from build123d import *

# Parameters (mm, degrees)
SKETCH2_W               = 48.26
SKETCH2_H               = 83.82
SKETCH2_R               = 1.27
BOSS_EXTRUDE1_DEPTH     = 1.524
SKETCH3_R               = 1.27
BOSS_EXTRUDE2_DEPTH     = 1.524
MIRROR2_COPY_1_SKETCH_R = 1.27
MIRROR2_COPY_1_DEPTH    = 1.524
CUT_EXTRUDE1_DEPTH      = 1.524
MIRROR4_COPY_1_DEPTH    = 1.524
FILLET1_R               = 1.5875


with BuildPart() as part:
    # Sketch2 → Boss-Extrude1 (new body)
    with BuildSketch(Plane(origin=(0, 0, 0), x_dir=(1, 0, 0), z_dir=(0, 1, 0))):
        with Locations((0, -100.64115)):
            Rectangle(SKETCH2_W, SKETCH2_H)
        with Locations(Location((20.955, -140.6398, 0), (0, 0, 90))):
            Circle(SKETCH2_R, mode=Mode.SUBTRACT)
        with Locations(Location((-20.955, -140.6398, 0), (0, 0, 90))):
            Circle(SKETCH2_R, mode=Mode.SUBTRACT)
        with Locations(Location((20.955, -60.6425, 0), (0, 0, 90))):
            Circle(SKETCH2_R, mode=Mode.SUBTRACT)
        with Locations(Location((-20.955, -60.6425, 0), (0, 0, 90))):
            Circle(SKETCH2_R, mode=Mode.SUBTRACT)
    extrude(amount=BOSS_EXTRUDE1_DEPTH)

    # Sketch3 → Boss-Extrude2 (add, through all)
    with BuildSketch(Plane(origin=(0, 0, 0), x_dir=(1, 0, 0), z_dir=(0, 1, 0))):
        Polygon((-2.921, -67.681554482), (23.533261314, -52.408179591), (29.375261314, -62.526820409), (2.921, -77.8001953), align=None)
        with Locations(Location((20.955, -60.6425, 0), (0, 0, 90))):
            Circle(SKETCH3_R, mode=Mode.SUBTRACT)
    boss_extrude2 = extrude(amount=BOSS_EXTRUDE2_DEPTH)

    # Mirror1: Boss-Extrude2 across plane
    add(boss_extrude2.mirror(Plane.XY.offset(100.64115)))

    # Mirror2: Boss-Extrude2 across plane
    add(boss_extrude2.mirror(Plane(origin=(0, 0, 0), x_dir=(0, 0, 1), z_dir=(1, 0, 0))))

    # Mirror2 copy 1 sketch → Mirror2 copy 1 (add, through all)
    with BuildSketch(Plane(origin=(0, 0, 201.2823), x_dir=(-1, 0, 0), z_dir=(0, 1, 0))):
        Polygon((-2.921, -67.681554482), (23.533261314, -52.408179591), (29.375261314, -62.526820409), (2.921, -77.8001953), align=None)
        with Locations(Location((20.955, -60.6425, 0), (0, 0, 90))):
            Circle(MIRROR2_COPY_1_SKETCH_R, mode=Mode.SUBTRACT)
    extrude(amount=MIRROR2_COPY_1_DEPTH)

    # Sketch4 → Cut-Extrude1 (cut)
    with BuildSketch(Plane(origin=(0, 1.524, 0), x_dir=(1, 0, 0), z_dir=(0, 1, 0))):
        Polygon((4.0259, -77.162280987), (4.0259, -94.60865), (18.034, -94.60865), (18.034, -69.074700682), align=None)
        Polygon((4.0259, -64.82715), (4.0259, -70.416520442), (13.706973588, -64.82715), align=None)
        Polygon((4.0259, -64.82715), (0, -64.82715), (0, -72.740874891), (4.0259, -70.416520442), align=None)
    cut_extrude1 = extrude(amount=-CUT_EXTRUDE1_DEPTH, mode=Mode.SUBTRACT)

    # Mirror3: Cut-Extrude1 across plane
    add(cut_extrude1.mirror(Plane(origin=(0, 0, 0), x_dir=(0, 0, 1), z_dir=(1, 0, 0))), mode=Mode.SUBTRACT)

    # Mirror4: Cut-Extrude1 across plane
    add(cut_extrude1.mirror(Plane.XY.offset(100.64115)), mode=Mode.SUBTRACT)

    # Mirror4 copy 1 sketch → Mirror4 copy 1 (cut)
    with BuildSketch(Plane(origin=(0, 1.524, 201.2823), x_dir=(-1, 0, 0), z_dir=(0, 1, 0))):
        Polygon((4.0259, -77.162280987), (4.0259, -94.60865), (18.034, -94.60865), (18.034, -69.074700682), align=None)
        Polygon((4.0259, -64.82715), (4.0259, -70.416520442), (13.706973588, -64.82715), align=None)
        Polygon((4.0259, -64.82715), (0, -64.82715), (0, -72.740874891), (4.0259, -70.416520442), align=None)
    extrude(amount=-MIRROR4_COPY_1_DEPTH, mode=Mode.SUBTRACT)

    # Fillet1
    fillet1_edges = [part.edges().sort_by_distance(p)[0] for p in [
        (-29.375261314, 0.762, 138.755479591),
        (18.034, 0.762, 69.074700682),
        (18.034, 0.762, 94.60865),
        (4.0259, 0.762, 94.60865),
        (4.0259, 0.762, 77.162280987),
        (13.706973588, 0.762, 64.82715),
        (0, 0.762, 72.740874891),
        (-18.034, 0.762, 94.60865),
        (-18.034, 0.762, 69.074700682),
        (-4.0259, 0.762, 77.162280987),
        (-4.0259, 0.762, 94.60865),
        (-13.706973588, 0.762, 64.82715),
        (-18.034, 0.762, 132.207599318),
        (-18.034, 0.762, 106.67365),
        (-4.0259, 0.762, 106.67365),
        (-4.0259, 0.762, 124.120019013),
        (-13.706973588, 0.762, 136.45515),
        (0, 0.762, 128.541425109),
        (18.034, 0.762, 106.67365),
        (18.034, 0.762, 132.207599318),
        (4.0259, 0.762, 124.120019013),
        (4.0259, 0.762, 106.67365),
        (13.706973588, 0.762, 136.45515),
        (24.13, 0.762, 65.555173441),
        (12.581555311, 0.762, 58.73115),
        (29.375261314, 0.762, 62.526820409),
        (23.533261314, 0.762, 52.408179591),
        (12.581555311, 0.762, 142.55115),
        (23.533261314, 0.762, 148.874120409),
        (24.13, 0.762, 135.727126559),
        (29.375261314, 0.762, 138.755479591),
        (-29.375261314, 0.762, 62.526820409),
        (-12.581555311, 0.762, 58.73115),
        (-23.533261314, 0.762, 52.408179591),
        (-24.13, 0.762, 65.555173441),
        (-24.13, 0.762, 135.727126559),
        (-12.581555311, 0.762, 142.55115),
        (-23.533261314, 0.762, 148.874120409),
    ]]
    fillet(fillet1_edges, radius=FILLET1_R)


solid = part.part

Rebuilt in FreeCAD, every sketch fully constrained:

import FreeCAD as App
import Part
import Sketcher
Q = App.Units.Quantity


def edges_at(feature, points):
    """Names of the edges that pass closest to the given points."""
    edges = feature.Shape.Edges
    near = lambda p: min(range(len(edges)), key=lambda i: edges[i].distToShape(Part.Vertex(*p))[0])
    return sorted({f"Edge{near(p) + 1}" for p in points})


def add_polygon(sketch, points):
    """Adds a closed chain of lines whose ends are joined by coincident constraints."""
    first, n = sketch.GeometryCount, len(points)
    for a, b in zip(points, points[1:] + points[:1]):
        sketch.addGeometry(Part.LineSegment(App.Vector(*a, 0), App.Vector(*b, 0)), False)
    for i in range(n):
        sketch.addConstraint(Sketcher.Constraint("Coincident", first + i, 2, first + (i + 1) % n, 1))

doc = App.newDocument("Part")
body = doc.addObject("PartDesign::Body", "Body")

sketch1 = body.newObject("Sketcher::SketchObject", "Sketch")
sketch1.AttachmentSupport = (doc.getObject("XZ_Plane"), [""])
sketch1.MapMode = "FlatFace"
add_polygon(sketch1, [(-24.1, 58.7), (-24.1, 142.6), (24.1, 142.6), (24.1, 58.7)])
sketch1.addGeometry(Part.Circle(App.Vector(-21, 140.6, 0), App.Vector(0, 0, 1), 1.3), False)
sketch1.addGeometry(Part.Circle(App.Vector(21, 140.6, 0), App.Vector(0, 0, 1), 1.3), False)
sketch1.addGeometry(Part.Circle(App.Vector(-21, 60.6, 0), App.Vector(0, 0, 1), 1.3), False)
sketch1.addGeometry(Part.Circle(App.Vector(21, 60.6, 0), App.Vector(0, 0, 1), 1.3), False)
sketch1.addConstraint([
    Sketcher.Constraint("Vertical", 0),
    Sketcher.Constraint("Horizontal", 1),
    Sketcher.Constraint("Vertical", 2),
    Sketcher.Constraint("Horizontal", 3),
    Sketcher.Constraint("Equal", 4, 5),
    Sketcher.Constraint("Equal", 5, 6),
    Sketcher.Constraint("Equal", 6, 7),
    Sketcher.Constraint("Symmetric", 4, 3, 5, 3, -2),
    Sketcher.Constraint("Symmetric", 6, 3, 7, 3, -2),
    Sketcher.Constraint("Vertical", 4, 3, 6, 3),
    Sketcher.Constraint("Diameter", 4, Q("0.1 in")),
    Sketcher.Constraint("DistanceX", 1, 1, 1, 2, Q("1.9 in")),
    Sketcher.Constraint("DistanceY", 0, 1, 0, 2, Q("3.3 in")),
    Sketcher.Constraint("DistanceX", 0, 2, -1, 1, Q("0.95 in")),
    Sketcher.Constraint("DistanceX", 4, 3, 5, 3, Q("1.65 in")),
    Sketcher.Constraint("DistanceY", -1, 1, 4, 3, Q("5.537 in")),
    Sketcher.Constraint("DistanceY", -1, 1, 6, 3, Q("2.3875 in")),
    Sketcher.Constraint("DistanceY", -1, 1, 0, 2, Q("142.55115 mm")),
])
pad1 = body.newObject("PartDesign::Pad", "Pad")
pad1.Profile = sketch1
pad1.Length = Q("0.06 in")
pad1.Reversed = True

sketch2 = body.newObject("Sketcher::SketchObject", "Sketch001")
sketch2.AttachmentSupport = (doc.getObject("XZ_Plane"), [""])
sketch2.MapMode = "FlatFace"
add_polygon(sketch2, [(23.5, 52.4), (-2.9, 67.7), (2.9, 77.8), (29.4, 62.5)])
sketch2.addGeometry(Part.Circle(App.Vector(21, 60.6, 0), App.Vector(0, 0, 1), 1.3), False)
sketch2.addConstraint([
    Sketcher.Constraint("Perpendicular", 0, 1),
    Sketcher.Constraint("Perpendicular", 1, 2),
    Sketcher.Constraint("Perpendicular", 2, 3),
    Sketcher.Constraint("Diameter", 4, Q("0.1 in")),
    Sketcher.Constraint("Angle", 0, Q("150 deg")),
    Sketcher.Constraint("Distance", 1, Q("0.46 in")),
    Sketcher.Constraint("DistanceX", 0, 2, 4, 3, Q("0.94 in")),
    Sketcher.Constraint("DistanceX", -1, 1, 4, 3, Q("0.825 in")),
    Sketcher.Constraint("DistanceY", -1, 1, 1, 2, Q("3.0629998 in")),
    Sketcher.Constraint("DistanceY", -1, 1, 4, 3, Q("2.3875 in")),
    Sketcher.Constraint("Distance", 0, Q("30.54675 mm")),
])
pad2 = body.newObject("PartDesign::Pad", "Pad001")
pad2.Profile = sketch2
pad2.Type = "UpToLast"
pad2.Reversed = True
doc.recompute()

datumplane = body.newObject("PartDesign::Plane", "DatumPlane")
datumplane.AttachmentSupport = (doc.getObject("XY_Plane"), [""])
datumplane.MapMode = "FlatFace"
datumplane.AttachmentOffset = App.Placement(App.Vector(0, 0, 100.64115), App.Rotation())
mirrored = body.newObject("PartDesign::Mirrored", "Mirrored")
mirrored.Originals = [pad2]
mirrored.MirrorPlane = (datumplane, [""])
body.Tip = mirrored
doc.recompute()

mirrored2 = body.newObject("PartDesign::Mirrored", "Mirrored001")
mirrored2.Originals = [pad2]
mirrored2.MirrorPlane = (doc.getObject("YZ_Plane"), [""])
body.Tip = mirrored2

sketch3 = body.newObject("Sketcher::SketchObject", "Sketch002")
sketch3.AttachmentSupport = (doc.getObject("XZ_Plane"), [""])
sketch3.MapMode = "FlatFace"
add_polygon(sketch3, [(-23.5, 148.9), (2.9, 133.6), (-2.9, 123.5), (-29.4, 138.8)])
sketch3.addGeometry(Part.Circle(App.Vector(-21, 140.6, 0), App.Vector(0, 0, 1), 1.3), False)
sketch3.addConstraint([
    Sketcher.Constraint("Perpendicular", 0, 1),
    Sketcher.Constraint("Perpendicular", 1, 2),
    Sketcher.Constraint("Perpendicular", 2, 3),
    Sketcher.Constraint("Diameter", 4, Q("0.1 in")),
    Sketcher.Constraint("Angle", 0, Q("-30 deg")),
    Sketcher.Constraint("Distance", 1, Q("0.46 in")),
    Sketcher.Constraint("DistanceX", 4, 3, 0, 2, Q("0.94 in")),
    Sketcher.Constraint("DistanceX", 4, 3, -1, 1, Q("0.825 in")),
    Sketcher.Constraint("DistanceY", -1, 1, 4, 3, Q("5.537 in")),
    Sketcher.Constraint("DistanceY", -1, 1, 1, 2, Q("4.8615002 in")),
    Sketcher.Constraint("Distance", 0, Q("30.54675 mm")),
])
pad3 = body.newObject("PartDesign::Pad", "Pad002")
pad3.Profile = sketch3
pad3.Type = "UpToLast"
pad3.Reversed = True

sketch4 = body.newObject("Sketcher::SketchObject", "Sketch003")
sketch4.AttachmentSupport = (doc.getObject("XZ_Plane"), [""])
sketch4.MapMode = "FlatFace"
sketch4.AttachmentOffset = App.Placement(App.Vector(0, 0, -0.06 * 25.4), App.Rotation())
add_polygon(sketch4, [(4, 77.2), (4, 94.6), (18, 94.6), (18, 69.1)])
add_polygon(sketch4, [(4, 70.4), (13.7, 64.8), (0, 64.8), (0, 72.7)])
sketch4.addConstraint([
    Sketcher.Constraint("Vertical", 0),
    Sketcher.Constraint("Horizontal", 1),
    Sketcher.Constraint("Vertical", 2),
    Sketcher.Constraint("Horizontal", 5),
    Sketcher.Constraint("Vertical", 6),
    Sketcher.Constraint("PointOnObject", 5, 2, -2),
    Sketcher.Constraint("Parallel", 3, 4),
    Sketcher.Constraint("Parallel", 4, 7),
    Sketcher.Constraint("Vertical", 3, 2, 7, 2),
    Sketcher.Constraint("Angle", 3, Q("150 deg")),
    Sketcher.Constraint("DistanceX", -1, 1, 1, 2, Q("0.71 in")),
    Sketcher.Constraint("DistanceX", 1, 1, 1, 2, Q("0.5515 in")),
    Sketcher.Constraint("DistanceY", 4, 2, 1, 2, Q("1.1725 in")),
    Sketcher.Constraint("DistanceY", 0, 1, 0, 2, Q("17.446369 mm")),
    Sketcher.Constraint("DistanceY", -1, 1, 2, 2, Q("69.074701 mm")),
    Sketcher.Constraint("Distance", 4, Q("11.178741 mm")),
])
pocket1 = body.newObject("PartDesign::Pocket", "Pocket")
pocket1.Profile = sketch4
pocket1.Length = Q("0.06 in")
pocket1.Reversed = True
doc.recompute()

mirrored3 = body.newObject("PartDesign::Mirrored", "Mirrored002")
mirrored3.Originals = [pocket1]
mirrored3.MirrorPlane = (doc.getObject("YZ_Plane"), [""])
body.Tip = mirrored3
doc.recompute()

datumplane2 = body.newObject("PartDesign::Plane", "DatumPlane001")
datumplane2.AttachmentSupport = (doc.getObject("XY_Plane"), [""])
datumplane2.MapMode = "FlatFace"
datumplane2.AttachmentOffset = App.Placement(App.Vector(0, 0, 100.64115), App.Rotation())
mirrored4 = body.newObject("PartDesign::Mirrored", "Mirrored003")
mirrored4.Originals = [pocket1]
mirrored4.MirrorPlane = (datumplane2, [""])
body.Tip = mirrored4

sketch5 = body.newObject("Sketcher::SketchObject", "Sketch004")
sketch5.AttachmentSupport = (doc.getObject("XZ_Plane"), [""])
sketch5.MapMode = "FlatFace"
sketch5.AttachmentOffset = App.Placement(App.Vector(0, 0, -0.06 * 25.4), App.Rotation())
add_polygon(sketch5, [(-4, 124.1), (-4, 106.7), (-18, 106.7), (-18, 132.2)])
add_polygon(sketch5, [(-4, 130.9), (-13.7, 136.5), (0, 136.5), (0, 128.5)])
sketch5.addConstraint([
    Sketcher.Constraint("Vertical", 0),
    Sketcher.Constraint("Horizontal", 1),
    Sketcher.Constraint("Vertical", 2),
    Sketcher.Constraint("Horizontal", 5),
    Sketcher.Constraint("Vertical", 6),
    Sketcher.Constraint("PointOnObject", 5, 2, -2),
    Sketcher.Constraint("Parallel", 3, 4),
    Sketcher.Constraint("Parallel", 4, 7),
    Sketcher.Constraint("Vertical", 3, 2, 7, 2),
    Sketcher.Constraint("Angle", 3, Q("-30 deg")),
    Sketcher.Constraint("DistanceX", 1, 2, -1, 1, Q("0.71 in")),
    Sketcher.Constraint("DistanceX", 1, 2, 1, 1, Q("0.5515 in")),
    Sketcher.Constraint("DistanceY", 1, 2, 4, 2, Q("1.1725 in")),
    Sketcher.Constraint("DistanceY", 0, 2, 0, 1, Q("17.446369 mm")),
    Sketcher.Constraint("DistanceY", -1, 1, 2, 2, Q("132.207599 mm")),
    Sketcher.Constraint("Distance", 4, Q("11.178741 mm")),
])
pocket2 = body.newObject("PartDesign::Pocket", "Pocket001")
pocket2.Profile = sketch5
pocket2.Length = Q("0.06 in")
pocket2.Reversed = True
doc.recompute()

fillet = body.newObject("PartDesign::Fillet", "Fillet")
fillet.Base = (pocket2, edges_at(pocket2, [
    (-29.375, 0.762, 138.755),
    (18.034, 0.762, 69.075),
    (18.034, 0.762, 94.609),
    (4.026, 0.762, 94.609),
    (4.026, 0.762, 77.162),
    (13.707, 0.762, 64.827),
    (0, 0.762, 72.741),
    (-18.034, 0.762, 94.609),
    (-18.034, 0.762, 69.075),
    (-4.026, 0.762, 77.162),
    (-4.026, 0.762, 94.609),
    (-13.707, 0.762, 64.827),
    (-18.034, 0.762, 132.208),
    (-18.034, 0.762, 106.674),
    (-4.026, 0.762, 106.674),
    (-4.026, 0.762, 124.12),
    (-13.707, 0.762, 136.455),
    (0, 0.762, 128.541),
    (18.034, 0.762, 106.674),
    (18.034, 0.762, 132.208),
    (4.026, 0.762, 124.12),
    (4.026, 0.762, 106.674),
    (13.707, 0.762, 136.455),
    (24.13, 0.762, 65.555),
    (12.582, 0.762, 58.731),
    (29.375, 0.762, 62.527),
    (23.533, 0.762, 52.408),
    (12.582, 0.762, 142.551),
    (23.533, 0.762, 148.874),
    (24.13, 0.762, 135.727),
    (29.375, 0.762, 138.755),
    (-29.375, 0.762, 62.527),
    (-12.582, 0.762, 58.731),
    (-23.533, 0.762, 52.408),
    (-24.13, 0.762, 65.555),
    (-24.13, 0.762, 135.727),
    (-12.582, 0.762, 142.551),
    (-23.533, 0.762, 148.874),
]))
fillet.Radius = Q("0.0625 in")

doc.recompute()
